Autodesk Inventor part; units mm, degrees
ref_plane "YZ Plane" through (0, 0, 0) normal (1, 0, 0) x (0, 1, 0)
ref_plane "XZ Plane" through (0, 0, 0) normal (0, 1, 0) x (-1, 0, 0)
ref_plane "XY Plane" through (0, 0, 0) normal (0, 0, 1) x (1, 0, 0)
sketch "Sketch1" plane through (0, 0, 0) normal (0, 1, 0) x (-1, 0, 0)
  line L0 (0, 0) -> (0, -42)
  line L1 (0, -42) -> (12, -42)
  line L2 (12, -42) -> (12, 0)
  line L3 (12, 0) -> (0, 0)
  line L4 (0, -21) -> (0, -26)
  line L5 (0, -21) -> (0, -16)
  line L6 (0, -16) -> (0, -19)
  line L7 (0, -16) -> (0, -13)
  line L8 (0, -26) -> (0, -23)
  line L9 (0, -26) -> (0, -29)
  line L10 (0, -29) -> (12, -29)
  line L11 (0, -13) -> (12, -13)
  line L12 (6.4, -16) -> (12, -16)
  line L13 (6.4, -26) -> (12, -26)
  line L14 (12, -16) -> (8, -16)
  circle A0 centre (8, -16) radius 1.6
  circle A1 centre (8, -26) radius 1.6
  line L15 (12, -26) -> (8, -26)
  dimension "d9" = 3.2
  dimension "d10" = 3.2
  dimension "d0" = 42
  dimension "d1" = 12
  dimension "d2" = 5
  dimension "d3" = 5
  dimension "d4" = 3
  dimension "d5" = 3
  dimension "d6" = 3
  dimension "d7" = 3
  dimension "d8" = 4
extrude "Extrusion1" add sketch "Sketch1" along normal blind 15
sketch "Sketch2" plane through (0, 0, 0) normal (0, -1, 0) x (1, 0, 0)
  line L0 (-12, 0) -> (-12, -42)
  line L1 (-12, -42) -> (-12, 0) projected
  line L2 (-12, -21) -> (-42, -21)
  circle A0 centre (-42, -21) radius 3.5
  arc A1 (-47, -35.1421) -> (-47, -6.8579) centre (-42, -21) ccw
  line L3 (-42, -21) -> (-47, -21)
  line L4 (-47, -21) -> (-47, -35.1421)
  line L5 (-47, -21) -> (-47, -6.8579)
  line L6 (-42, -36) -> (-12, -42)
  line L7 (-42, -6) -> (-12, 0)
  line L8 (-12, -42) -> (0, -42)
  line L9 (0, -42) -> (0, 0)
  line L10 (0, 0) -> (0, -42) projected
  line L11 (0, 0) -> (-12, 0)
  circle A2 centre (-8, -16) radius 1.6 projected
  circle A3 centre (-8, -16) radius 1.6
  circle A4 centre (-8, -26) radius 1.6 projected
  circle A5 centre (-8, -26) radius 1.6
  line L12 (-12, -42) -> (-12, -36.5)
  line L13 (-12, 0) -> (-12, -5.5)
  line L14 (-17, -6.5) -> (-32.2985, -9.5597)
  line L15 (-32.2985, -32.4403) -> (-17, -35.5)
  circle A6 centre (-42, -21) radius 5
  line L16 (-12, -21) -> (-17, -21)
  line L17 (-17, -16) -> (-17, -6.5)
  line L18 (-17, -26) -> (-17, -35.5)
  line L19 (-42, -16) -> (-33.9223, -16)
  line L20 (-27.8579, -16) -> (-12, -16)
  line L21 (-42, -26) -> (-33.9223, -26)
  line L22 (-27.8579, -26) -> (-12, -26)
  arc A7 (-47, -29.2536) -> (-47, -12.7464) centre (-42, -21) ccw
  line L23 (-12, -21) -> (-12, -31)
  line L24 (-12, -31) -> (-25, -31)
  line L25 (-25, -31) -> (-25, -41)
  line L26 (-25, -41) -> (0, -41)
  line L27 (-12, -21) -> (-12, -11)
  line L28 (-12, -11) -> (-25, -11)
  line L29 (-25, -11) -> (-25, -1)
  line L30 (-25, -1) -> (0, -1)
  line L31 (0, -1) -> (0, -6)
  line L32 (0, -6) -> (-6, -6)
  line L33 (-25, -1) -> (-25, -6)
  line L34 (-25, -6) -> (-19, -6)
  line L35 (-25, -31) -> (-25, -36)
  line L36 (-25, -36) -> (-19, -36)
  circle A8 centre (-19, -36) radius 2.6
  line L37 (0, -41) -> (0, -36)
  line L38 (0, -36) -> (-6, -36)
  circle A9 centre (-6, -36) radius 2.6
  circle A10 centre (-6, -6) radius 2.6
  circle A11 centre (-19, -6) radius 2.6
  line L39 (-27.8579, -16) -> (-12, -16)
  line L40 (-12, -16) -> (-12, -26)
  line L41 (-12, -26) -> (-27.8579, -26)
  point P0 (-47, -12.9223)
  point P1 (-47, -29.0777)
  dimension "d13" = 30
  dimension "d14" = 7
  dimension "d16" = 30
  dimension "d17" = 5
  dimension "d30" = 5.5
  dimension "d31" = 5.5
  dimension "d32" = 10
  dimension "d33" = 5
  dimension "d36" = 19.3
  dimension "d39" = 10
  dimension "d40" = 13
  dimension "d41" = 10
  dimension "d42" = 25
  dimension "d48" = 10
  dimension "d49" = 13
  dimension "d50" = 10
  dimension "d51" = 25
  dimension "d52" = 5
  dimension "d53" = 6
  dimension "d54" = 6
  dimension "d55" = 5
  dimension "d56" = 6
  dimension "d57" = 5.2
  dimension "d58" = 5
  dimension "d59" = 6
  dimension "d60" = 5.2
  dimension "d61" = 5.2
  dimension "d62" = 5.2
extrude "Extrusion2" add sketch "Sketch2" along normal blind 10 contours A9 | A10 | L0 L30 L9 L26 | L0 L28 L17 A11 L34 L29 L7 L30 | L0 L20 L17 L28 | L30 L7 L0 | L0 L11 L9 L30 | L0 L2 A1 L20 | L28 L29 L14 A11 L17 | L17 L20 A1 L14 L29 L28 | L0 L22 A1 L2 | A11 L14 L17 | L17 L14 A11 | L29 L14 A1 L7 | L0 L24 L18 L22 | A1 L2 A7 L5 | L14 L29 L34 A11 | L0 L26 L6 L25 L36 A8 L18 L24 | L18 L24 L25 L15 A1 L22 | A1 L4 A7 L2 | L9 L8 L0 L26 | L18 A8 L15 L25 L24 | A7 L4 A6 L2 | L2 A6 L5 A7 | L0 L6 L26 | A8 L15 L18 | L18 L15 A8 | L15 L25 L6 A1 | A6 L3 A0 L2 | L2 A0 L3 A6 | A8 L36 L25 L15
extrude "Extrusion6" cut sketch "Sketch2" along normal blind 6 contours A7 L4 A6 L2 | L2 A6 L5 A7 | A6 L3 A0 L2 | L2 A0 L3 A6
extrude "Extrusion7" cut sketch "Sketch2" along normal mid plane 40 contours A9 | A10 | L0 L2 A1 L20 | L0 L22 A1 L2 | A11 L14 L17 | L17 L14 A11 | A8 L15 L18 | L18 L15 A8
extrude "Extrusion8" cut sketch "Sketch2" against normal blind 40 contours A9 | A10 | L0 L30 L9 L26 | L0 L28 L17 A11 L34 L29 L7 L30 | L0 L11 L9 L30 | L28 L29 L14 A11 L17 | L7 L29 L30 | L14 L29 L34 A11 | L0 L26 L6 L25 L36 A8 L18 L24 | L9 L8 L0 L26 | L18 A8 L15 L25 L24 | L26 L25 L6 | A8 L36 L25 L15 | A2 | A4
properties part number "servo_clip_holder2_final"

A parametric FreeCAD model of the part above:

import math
import FreeCAD as App
import Part
import Sketcher
from FreeCAD import Vector

doc = App.newDocument("Part")
body = doc.addObject("PartDesign::Body", "Body")

sketch1 = body.newObject("Sketcher::SketchObject", "Sketch")
sketch1.AttachmentSupport = (doc.getObject("XZ_Plane"), [""])
sketch1.MapMode = "FlatFace"
sketch1.addGeometry(Part.LineSegment(Vector(-12, 0, 0), Vector(0, 0, 0)), False)
sketch1.addGeometry(Part.LineSegment(Vector(0, 0, 0), Vector(0, -42, 0)), False)
sketch1.addGeometry(Part.LineSegment(Vector(0, -42, 0), Vector(-12, -42, 0)), False)
sketch1.addGeometry(Part.LineSegment(Vector(-12, -42, 0), Vector(-12, -26, 0)), False)
sketch1.addGeometry(Part.LineSegment(Vector(-12, -26, 0), Vector(-12, -16, 0)), False)
sketch1.addGeometry(Part.LineSegment(Vector(-12, -16, 0), Vector(-12, 0, 0)), False)
sketch1.addGeometry(Part.Circle(Vector(-8, -26, 0), Vector(0, 0, 1), 1.6), False)
sketch1.addGeometry(Part.Circle(Vector(-8, -16, 0), Vector(0, 0, 1), 1.6), False)
sketch1.addConstraint(Sketcher.Constraint("Coincident", 0, 2, 1, 1))
sketch1.addConstraint(Sketcher.Constraint("Coincident", 1, 2, 2, 1))
sketch1.addConstraint(Sketcher.Constraint("Coincident", 2, 2, 3, 1))
sketch1.addConstraint(Sketcher.Constraint("Coincident", 3, 2, 4, 1))
sketch1.addConstraint(Sketcher.Constraint("Coincident", 4, 2, 5, 1))
sketch1.addConstraint(Sketcher.Constraint("Coincident", 5, 2, 0, 1))
sketch1.addConstraint(Sketcher.Constraint("Horizontal", 0))
sketch1.addConstraint(Sketcher.Constraint("Vertical", 1))
sketch1.addConstraint(Sketcher.Constraint("Horizontal", 2))
sketch1.addConstraint(Sketcher.Constraint("Vertical", 3))
sketch1.addConstraint(Sketcher.Constraint("Vertical", 4))
sketch1.addConstraint(Sketcher.Constraint("Vertical", 5))
sketch1.addConstraint(Sketcher.Constraint("Coincident", 0, 2, -1, 1))
sketch1.addConstraint(Sketcher.Constraint("Equal", 6, 7))
sketch1.addConstraint(Sketcher.Constraint("Horizontal", 6, 3, 3, 2))
sketch1.addConstraint(Sketcher.Constraint("Horizontal", 7, 3, 4, 2))
sketch1.addConstraint(Sketcher.Constraint("Vertical", 6, 3, 7, 3))
sketch1.addConstraint(Sketcher.Constraint("Equal", 3, 5))
sketch1.addConstraint(Sketcher.Constraint("Diameter", 6, 3.2))
sketch1.addConstraint(Sketcher.Constraint("DistanceX", 0, 1, 0, 2, 12.0))
sketch1.addConstraint(Sketcher.Constraint("DistanceY", 1, 2, 1, 1, 42.0))
sketch1.addConstraint(Sketcher.Constraint("DistanceX", 2, 2, 6, 3, 4.0))
sketch1.addConstraint(Sketcher.Constraint("DistanceY", 3, 1, 3, 2, 16.0))
pad1 = body.newObject("PartDesign::Pad", "Pad")
pad1.Profile = sketch1
pad1.Length = 15
pad1.Reversed = True

sketch2 = body.newObject("Sketcher::SketchObject", "Sketch001")
sketch2.AttachmentSupport = (doc.getObject("XZ_Plane"), [""])
sketch2.MapMode = "FlatFace"
sketch2.addGeometry(Part.LineSegment(Vector(0, -6, 0), Vector(0, 0, 0)), False)
sketch2.addGeometry(Part.LineSegment(Vector(0, 0, 0), Vector(-12, 0, 0)), False)
sketch2.addGeometry(Part.LineSegment(Vector(-12, 0, 0), Vector(-42, -6, 0)), False)
sketch2.addGeometry(Part.ArcOfCircle(Part.Circle(Vector(-42, -21, 0), Vector(0, 0, 1), 14.999966), math.radians(90), math.radians(109.471266)), False)
sketch2.addGeometry(Part.LineSegment(Vector(-47, -6.8579, 0), Vector(-47, -35.1421, 0)), False)
sketch2.addGeometry(Part.ArcOfCircle(Part.Circle(Vector(-42, -21, 0), Vector(0, 0, 1), 14.999966), math.radians(-109.471266), math.radians(-90)), False)
sketch2.addGeometry(Part.LineSegment(Vector(-42, -36, 0), Vector(-12, -42, 0)), False)
sketch2.addGeometry(Part.LineSegment(Vector(-12, -42, 0), Vector(0, -42, 0)), False)
sketch2.addGeometry(Part.LineSegment(Vector(0, -42, 0), Vector(0, -36, 0)), False)
sketch2.addGeometry(Part.LineSegment(Vector(0, -36, 0), Vector(0, -6, 0)), False)
sketch2.addGeometry(Part.Circle(Vector(-8, -26, 0), Vector(0, 0, 1), 1.6), False)
sketch2.addGeometry(Part.Circle(Vector(-8, -16, 0), Vector(0, 0, 1), 1.6), False)
sketch2.addGeometry(Part.Circle(Vector(-42, -21, 0), Vector(0, 0, 1), 3.5), False)
sketch2.addConstraint(Sketcher.Constraint("Coincident", 0, 2, 1, 1))
sketch2.addConstraint(Sketcher.Constraint("Coincident", 1, 2, 2, 1))
sketch2.addConstraint(Sketcher.Constraint("Coincident", 2, 2, 3, 1))
sketch2.addConstraint(Sketcher.Constraint("Coincident", 3, 2, 4, 1))
sketch2.addConstraint(Sketcher.Constraint("Coincident", 4, 2, 5, 1))
sketch2.addConstraint(Sketcher.Constraint("Coincident", 5, 2, 6, 1))
sketch2.addConstraint(Sketcher.Constraint("Coincident", 6, 2, 7, 1))
sketch2.addConstraint(Sketcher.Constraint("Coincident", 7, 2, 8, 1))
sketch2.addConstraint(Sketcher.Constraint("Coincident", 8, 2, 9, 1))
sketch2.addConstraint(Sketcher.Constraint("Coincident", 9, 2, 0, 1))
sketch2.addConstraint(Sketcher.Constraint("Vertical", 0))
sketch2.addConstraint(Sketcher.Constraint("Horizontal", 1))
sketch2.addConstraint(Sketcher.Constraint("Vertical", 4))
sketch2.addConstraint(Sketcher.Constraint("Horizontal", 7))
sketch2.addConstraint(Sketcher.Constraint("Vertical", 8))
sketch2.addConstraint(Sketcher.Constraint("Vertical", 9))
sketch2.addConstraint(Sketcher.Constraint("Coincident", 0, 2, -1, 1))
sketch2.addConstraint(Sketcher.Constraint("Coincident", 5, 3, 3, 3))
sketch2.addConstraint(Sketcher.Constraint("Coincident", 12, 3, 3, 3))
sketch2.addConstraint(Sketcher.Constraint("Equal", 3, 5))
sketch2.addConstraint(Sketcher.Constraint("Equal", 10, 11))
sketch2.addConstraint(Sketcher.Constraint("Horizontal", 5, 2, 8, 2))
sketch2.addConstraint(Sketcher.Constraint("Horizontal", 2, 2, 9, 2))
sketch2.addConstraint(Sketcher.Constraint("Vertical", 10, 3, 11, 3))
sketch2.addConstraint(Sketcher.Constraint("Vertical", 12, 3, 2, 2))
sketch2.addConstraint(Sketcher.Constraint("Vertical", 2, 2, 5, 2))
sketch2.addConstraint(Sketcher.Constraint("Vertical", 1, 2, 6, 2))
sketch2.addConstraint(Sketcher.Constraint("Equal", 0, 8))
sketch2.addConstraint(Sketcher.Constraint("Diameter", 12, 7.0))
sketch2.addConstraint(Sketcher.Constraint("Radius", 3, 15.0))
sketch2.addConstraint(Sketcher.Constraint("DistanceY", 0, 1, 0, 2, 6.0))
sketch2.addConstraint(Sketcher.Constraint("DistanceY", 10, 3, 3, 3, 5.0))
sketch2.addConstraint(Sketcher.Constraint("DistanceY", 10, 3, 11, 3, 10.0))
sketch2.addConstraint(Sketcher.Constraint("DistanceX", 3, 3, 1, 2, 30.0))
sketch2.addConstraint(Sketcher.Constraint("DistanceX", 3, 2, 2, 2, 5.0))
sketch2.addConstraint(Sketcher.Constraint("Diameter", 10, 3.2))
sketch2.addConstraint(Sketcher.Constraint("DistanceX", 1, 2, 1, 1, 12.0))
sketch2.addConstraint(Sketcher.Constraint("DistanceX", 10, 3, -1, 1, 8.0))
pad2 = body.newObject("PartDesign::Pad", "Pad001")
pad2.Profile = sketch2
pad2.Length = 10

sketch3 = body.newObject("Sketcher::SketchObject", "Sketch002")
sketch3.AttachmentSupport = (doc.getObject("XZ_Plane"), [""])
sketch3.MapMode = "FlatFace"
sketch3.addGeometry(Part.ArcOfCircle(Part.Circle(Vector(-42, -21, 0), Vector(0, 0, 1), 9.64997), math.radians(-121.207324), math.radians(121.207324)), False)
sketch3.addGeometry(Part.LineSegment(Vector(-47, -12.7464, 0), Vector(-47, -29.2536, 0)), False)
sketch3.addGeometry(Part.Circle(Vector(-42, -21, 0), Vector(0, 0, 1), 3.5), False)
sketch3.addConstraint(Sketcher.Constraint("Coincident", 0, 1, 1, 2))
sketch3.addConstraint(Sketcher.Constraint("Coincident", 1, 1, 0, 2))
sketch3.addConstraint(Sketcher.Constraint("Vertical", 1))
sketch3.addConstraint(Sketcher.Constraint("Coincident", 2, 3, 0, 3))
sketch3.addConstraint(Sketcher.Constraint("Diameter", 2, 7.0))
sketch3.addConstraint(Sketcher.Constraint("Radius", 0, 9.65))
sketch3.addConstraint(Sketcher.Constraint("DistanceX", 0, 1, 0, 3, 5.0))
sketch3.addConstraint(Sketcher.Constraint("DistanceX", 0, 3, -1, 1, 42.0))
sketch3.addConstraint(Sketcher.Constraint("DistanceY", 0, 3, -1, 1, 21.0))
pocket1 = body.newObject("PartDesign::Pocket", "Pocket")
pocket1.Profile = sketch3
pocket1.Length = 6
pocket1.Reversed = True

sketch4 = body.newObject("Sketcher::SketchObject", "Sketch003")
sketch4.AttachmentSupport = (doc.getObject("XZ_Plane"), [""])
sketch4.MapMode = "FlatFace"
sketch4.addGeometry(Part.Circle(Vector(-6, -36, 0), Vector(0, 0, 1), 2.6), False)
sketch4.addGeometry(Part.Circle(Vector(-6, -6, 0), Vector(0, 0, 1), 2.6), False)
sketch4.addGeometry(Part.LineSegment(Vector(-12, -16, 0), Vector(-27.8579, -16, 0)), False)
sketch4.addGeometry(Part.ArcOfCircle(Part.Circle(Vector(-42, -21, 0), Vector(0, 0, 1), 14.999966), math.radians(-19.471266), math.radians(19.471266)), False)
sketch4.addGeometry(Part.LineSegment(Vector(-27.8579, -26, 0), Vector(-12, -26, 0)), False)
sketch4.addGeometry(Part.LineSegment(Vector(-12, -26, 0), Vector(-12, -16, 0)), False)
sketch4.addGeometry(Part.Circle(Vector(-19, -6, 0), Vector(0, 0, 1), 2.6), False)
sketch4.addGeometry(Part.Circle(Vector(-19, -36, 0), Vector(0, 0, 1), 2.6), False)
sketch4.addConstraint(Sketcher.Constraint("Coincident", 2, 2, 3, 2))
sketch4.addConstraint(Sketcher.Constraint("Coincident", 3, 1, 4, 1))
sketch4.addConstraint(Sketcher.Constraint("Coincident", 4, 2, 5, 1))
sketch4.addConstraint(Sketcher.Constraint("Coincident", 5, 2, 2, 1))
sketch4.addConstraint(Sketcher.Constraint("Horizontal", 2))
sketch4.addConstraint(Sketcher.Constraint("Horizontal", 4))
sketch4.addConstraint(Sketcher.Constraint("Vertical", 5))
sketch4.addConstraint(Sketcher.Constraint("Equal", 0, 1))
sketch4.addConstraint(Sketcher.Constraint("Equal", 1, 6))
sketch4.addConstraint(Sketcher.Constraint("Equal", 6, 7))
sketch4.addConstraint(Sketcher.Constraint("Horizontal", 1, 3, 6, 3))
sketch4.addConstraint(Sketcher.Constraint("Horizontal", 0, 3, 7, 3))
sketch4.addConstraint(Sketcher.Constraint("Vertical", 0, 3, 1, 3))
sketch4.addConstraint(Sketcher.Constraint("Vertical", 6, 3, 7, 3))
sketch4.addConstraint(Sketcher.Constraint("Vertical", 2, 2, 3, 1))
sketch4.addConstraint(Sketcher.Constraint("Radius", 3, 15.0))
sketch4.addConstraint(Sketcher.Constraint("Diameter", 0, 5.2))
sketch4.addConstraint(Sketcher.Constraint("DistanceY", 5, 1, 5, 2, 10.0))
sketch4.addConstraint(Sketcher.Constraint("DistanceX", 0, 3, -1, 1, 6.0))
sketch4.addConstraint(Sketcher.Constraint("DistanceY", 1, 3, -1, 1, 6.0))
sketch4.addConstraint(Sketcher.Constraint("DistanceY", 0, 3, 1, 3, 30.0))
sketch4.addConstraint(Sketcher.Constraint("DistanceX", 6, 3, 1, 3, 13.0))
sketch4.addConstraint(Sketcher.Constraint("DistanceY", 2, 2, 6, 3, 10.0))
sketch4.addConstraint(Sketcher.Constraint("DistanceX", 4, 2, 0, 3, 6.0))
sketch4.addConstraint(Sketcher.Constraint("DistanceX", 3, 3, -1, 1, 42.0))
pocket2 = body.newObject("PartDesign::Pocket", "Pocket001")
pocket2.Profile = sketch4
pocket2.Length = 40
pocket2.Midplane = True

sketch5 = body.newObject("Sketcher::SketchObject", "Sketch004")
sketch5.AttachmentSupport = (doc.getObject("XZ_Plane"), [""])
sketch5.MapMode = "FlatFace"
sketch5.addGeometry(Part.LineSegment(Vector(0, -6, 0), Vector(0, 0, 0)), False)
sketch5.addGeometry(Part.LineSegment(Vector(0, 0, 0), Vector(-12, 0, 0)), False)
sketch5.addGeometry(Part.LineSegment(Vector(-12, 0, 0), Vector(-12, -1, 0)), False)
sketch5.addGeometry(Part.LineSegment(Vector(-12, -1, 0), Vector(-25, -1, 0)), False)
sketch5.addGeometry(Part.LineSegment(Vector(-25, -1, 0), Vector(-25, -11, 0)), False)
sketch5.addGeometry(Part.LineSegment(Vector(-25, -11, 0), Vector(-12, -11, 0)), False)
sketch5.addGeometry(Part.LineSegment(Vector(-12, -11, 0), Vector(-12, -31, 0)), False)
sketch5.addGeometry(Part.LineSegment(Vector(-12, -31, 0), Vector(-25, -31, 0)), False)
sketch5.addGeometry(Part.LineSegment(Vector(-25, -31, 0), Vector(-25, -41, 0)), False)
sketch5.addGeometry(Part.LineSegment(Vector(-25, -41, 0), Vector(-12, -41, 0)), False)
sketch5.addGeometry(Part.LineSegment(Vector(-12, -41, 0), Vector(-12, -42, 0)), False)
sketch5.addGeometry(Part.LineSegment(Vector(-12, -42, 0), Vector(0, -42, 0)), False)
sketch5.addGeometry(Part.LineSegment(Vector(0, -42, 0), Vector(0, -36, 0)), False)
sketch5.addGeometry(Part.LineSegment(Vector(0, -36, 0), Vector(0, -6, 0)), False)
sketch5.addGeometry(Part.Circle(Vector(-19, -6, 0), Vector(0, 0, 1), 2.6), False)
sketch5.addGeometry(Part.Circle(Vector(-19, -36, 0), Vector(0, 0, 1), 2.6), False)
sketch5.addConstraint(Sketcher.Constraint("Coincident", 0, 2, 1, 1))
sketch5.addConstraint(Sketcher.Constraint("Coincident", 1, 2, 2, 1))
sketch5.addConstraint(Sketcher.Constraint("Coincident", 2, 2, 3, 1))
sketch5.addConstraint(Sketcher.Constraint("Coincident", 3, 2, 4, 1))
sketch5.addConstraint(Sketcher.Constraint("Coincident", 4, 2, 5, 1))
sketch5.addConstraint(Sketcher.Constraint("Coincident", 5, 2, 6, 1))
sketch5.addConstraint(Sketcher.Constraint("Coincident", 6, 2, 7, 1))
sketch5.addConstraint(Sketcher.Constraint("Coincident", 7, 2, 8, 1))
sketch5.addConstraint(Sketcher.Constraint("Coincident", 8, 2, 9, 1))
sketch5.addConstraint(Sketcher.Constraint("Coincident", 9, 2, 10, 1))
sketch5.addConstraint(Sketcher.Constraint("Coincident", 10, 2, 11, 1))
sketch5.addConstraint(Sketcher.Constraint("Coincident", 11, 2, 12, 1))
sketch5.addConstraint(Sketcher.Constraint("Coincident", 12, 2, 13, 1))
sketch5.addConstraint(Sketcher.Constraint("Coincident", 13, 2, 0, 1))
sketch5.addConstraint(Sketcher.Constraint("Vertical", 0))
sketch5.addConstraint(Sketcher.Constraint("Horizontal", 1))
sketch5.addConstraint(Sketcher.Constraint("Vertical", 2))
sketch5.addConstraint(Sketcher.Constraint("Horizontal", 3))
sketch5.addConstraint(Sketcher.Constraint("Vertical", 4))
sketch5.addConstraint(Sketcher.Constraint("Horizontal", 5))
sketch5.addConstraint(Sketcher.Constraint("Vertical", 6))
sketch5.addConstraint(Sketcher.Constraint("Horizontal", 7))
sketch5.addConstraint(Sketcher.Constraint("Vertical", 8))
sketch5.addConstraint(Sketcher.Constraint("Horizontal", 9))
sketch5.addConstraint(Sketcher.Constraint("Vertical", 10))
sketch5.addConstraint(Sketcher.Constraint("Horizontal", 11))
sketch5.addConstraint(Sketcher.Constraint("Vertical", 12))
sketch5.addConstraint(Sketcher.Constraint("Vertical", 13))
sketch5.addConstraint(Sketcher.Constraint("Coincident", 0, 2, -1, 1))
sketch5.addConstraint(Sketcher.Constraint("Equal", 14, 15))
sketch5.addConstraint(Sketcher.Constraint("Horizontal", 15, 3, 12, 2))
sketch5.addConstraint(Sketcher.Constraint("Horizontal", 14, 3, 13, 2))
sketch5.addConstraint(Sketcher.Constraint("Vertical", 14, 3, 15, 3))
sketch5.addConstraint(Sketcher.Constraint("Vertical", 2, 2, 5, 2))
sketch5.addConstraint(Sketcher.Constraint("Vertical", 4, 2, 7, 2))
sketch5.addConstraint(Sketcher.Constraint("Vertical", 6, 2, 9, 2))
sketch5.addConstraint(Sketcher.Constraint("Equal", 4, 8))
sketch5.addConstraint(Sketcher.Constraint("Equal", 2, 10))
sketch5.addConstraint(Sketcher.Constraint("Equal", 0, 12))
sketch5.addConstraint(Sketcher.Constraint("Diameter", 14, 5.2))
sketch5.addConstraint(Sketcher.Constraint("DistanceX", 3, 2, 3, 1, 13.0))
sketch5.addConstraint(Sketcher.Constraint("DistanceY", 0, 1, 0, 2, 6.0))
sketch5.addConstraint(Sketcher.Constraint("DistanceY", 4, 2, 4, 1, 10.0))
sketch5.addConstraint(Sketcher.Constraint("DistanceY", 13, 1, 13, 2, 30.0))
sketch5.addConstraint(Sketcher.Constraint("DistanceX", 3, 2, -1, 1, 25.0))
sketch5.addConstraint(Sketcher.Constraint("DistanceX", 14, 3, 1, 2, 7.0))
sketch5.addConstraint(Sketcher.Constraint("DistanceY", 14, 3, 2, 2, 5.0))
pocket3 = body.newObject("PartDesign::Pocket", "Pocket002")
pocket3.Profile = sketch5
pocket3.Length = 40

doc.recompute()
